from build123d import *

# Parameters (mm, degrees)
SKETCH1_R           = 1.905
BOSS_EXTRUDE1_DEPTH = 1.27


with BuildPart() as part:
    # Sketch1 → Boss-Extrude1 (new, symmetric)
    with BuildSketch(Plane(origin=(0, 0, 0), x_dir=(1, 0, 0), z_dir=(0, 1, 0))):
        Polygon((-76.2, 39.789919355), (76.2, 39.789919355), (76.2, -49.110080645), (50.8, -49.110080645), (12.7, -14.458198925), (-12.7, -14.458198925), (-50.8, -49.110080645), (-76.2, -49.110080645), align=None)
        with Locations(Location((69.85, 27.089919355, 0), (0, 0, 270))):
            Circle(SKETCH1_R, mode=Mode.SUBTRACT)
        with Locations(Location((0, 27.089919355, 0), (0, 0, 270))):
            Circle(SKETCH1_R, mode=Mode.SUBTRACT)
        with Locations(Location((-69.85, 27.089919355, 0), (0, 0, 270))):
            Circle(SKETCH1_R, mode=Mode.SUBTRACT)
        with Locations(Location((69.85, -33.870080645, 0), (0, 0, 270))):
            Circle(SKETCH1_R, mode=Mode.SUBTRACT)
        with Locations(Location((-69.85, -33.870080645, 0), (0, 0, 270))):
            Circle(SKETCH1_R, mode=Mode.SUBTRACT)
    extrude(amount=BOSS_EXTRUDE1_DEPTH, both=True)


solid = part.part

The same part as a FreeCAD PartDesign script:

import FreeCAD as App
import Part
import Sketcher

V = App.Vector
Q = App.Units.Quantity

doc = App.newDocument("Part")
params = doc.addObject("Spreadsheet::Sheet", "Params")
for row, (alias, value) in enumerate([
    ("sketch1_diameter", "0.15 in"),
    ("sketch1_width", "6 in"),
    ("sketch1_width2", "1 in"),
    ("sketch1_height", "3.5 in"),
    ("pad1_length", "0.1 in"),
], start=1):
    params.set(f"A{row}", alias)
    params.set(f"B{row}", "=" + value)
    params.setAlias(f"B{row}", alias)

body = doc.addObject("PartDesign::Body", "Body")

# Sketch on XZ plane
sketch1 = body.newObject("Sketcher::SketchObject", "Sketch")
sketch1.AttachmentSupport = (doc.getObject("XZ_Plane"), [""])
sketch1.MapMode = "FlatFace"
sketch1.addGeometry([
    Part.LineSegment(V(76.2, -39.789919, 0), V(-76.2, -39.789919, 0)),  # 0
    Part.LineSegment(V(-76.2, -39.789919, 0), V(-76.2, 49.110081, 0)),  # 1
    Part.LineSegment(V(-76.2, 49.110081, 0), V(-50.8, 49.110081, 0)),  # 2
    Part.LineSegment(V(-50.8, 49.110081, 0), V(-12.7, 14.458199, 0)),  # 3
    Part.LineSegment(V(-12.7, 14.458199, 0), V(12.7, 14.458199, 0)),  # 4
    Part.LineSegment(V(12.7, 14.458199, 0), V(50.8, 49.110081, 0)),  # 5
    Part.LineSegment(V(50.8, 49.110081, 0), V(76.2, 49.110081, 0)),  # 6
    Part.LineSegment(V(76.2, 49.110081, 0), V(76.2, -39.789919, 0)),  # 7
    Part.Circle(V(69.85, 33.870081, 0), V(0, 0, 1), 1.905),  # 8
    Part.Circle(V(-69.85, 33.870081, 0), V(0, 0, 1), 1.905),  # 9
    Part.Circle(V(69.85, -27.089919, 0), V(0, 0, 1), 1.905),  # 10
    Part.Circle(V(0, -27.089919, 0), V(0, 0, 1), 1.905),  # 11
    Part.Circle(V(-69.85, -27.089919, 0), V(0, 0, 1), 1.905),  # 12
], False)
sketch1.addConstraint([
    Sketcher.Constraint("Coincident", 0, 2, 1, 1),
    Sketcher.Constraint("Coincident", 1, 2, 2, 1),
    Sketcher.Constraint("Coincident", 2, 2, 3, 1),
    Sketcher.Constraint("Coincident", 3, 2, 4, 1),
    Sketcher.Constraint("Coincident", 4, 2, 5, 1),
    Sketcher.Constraint("Coincident", 5, 2, 6, 1),
    Sketcher.Constraint("Coincident", 6, 2, 7, 1),
    Sketcher.Constraint("Coincident", 7, 2, 0, 1),
    Sketcher.Constraint("Horizontal", 0),
    Sketcher.Constraint("Vertical", 1),
    Sketcher.Constraint("Horizontal", 2),
    Sketcher.Constraint("Horizontal", 4),
    Sketcher.Constraint("Horizontal", 6),
    Sketcher.Constraint("Vertical", 7),
    Sketcher.Constraint("Equal", 8, 9),
    Sketcher.Constraint("Equal", 9, 10),
    Sketcher.Constraint("Equal", 10, 11),
    Sketcher.Constraint("Equal", 11, 12),
    Sketcher.Constraint("Symmetric", 8, 3, 9, 3, -2),
    Sketcher.Constraint("Symmetric", 10, 3, 12, 3, -2),
    Sketcher.Constraint("Symmetric", 2, 2, 5, 2, -2),
    Sketcher.Constraint("PointOnObject", 11, 3, -2),
    Sketcher.Constraint("Horizontal", 10, 3, 11, 3),
    Sketcher.Constraint("Vertical", 8, 3, 10, 3),
    Sketcher.Constraint("Equal", 2, 4),
    Sketcher.Constraint("Equal", 4, 6),
    Sketcher.Constraint("Equal", 3, 5),
    Sketcher.Constraint("Diameter", 8, Q("0.15 in")),
    Sketcher.Constraint("DistanceX", 0, 2, 0, 1, Q("6 in")),
    Sketcher.Constraint("DistanceX", 2, 1, 2, 2, Q("1 in")),
    Sketcher.Constraint("DistanceY", 1, 1, 1, 2, Q("3.5 in")),
    Sketcher.Constraint("DistanceY", 12, 3, 1, 2, Q("3 in")),
    Sketcher.Constraint("DistanceX", 9, 3, 8, 3, Q("5.5 in")),
    Sketcher.Constraint("DistanceY", 10, 3, 8, 3, Q("2.4 in")),
    Sketcher.Constraint("DistanceY", -1, 1, 3, 2, Q("14.458199 mm")),
    Sketcher.Constraint("DistanceY", -1, 1, 8, 3, Q("33.870081 mm")),
])
sketch1.setExpression("Constraints[27]", "Params.sketch1_diameter")
sketch1.setExpression("Constraints[28]", "Params.sketch1_width")
sketch1.setExpression("Constraints[29]", "Params.sketch1_width2")
sketch1.setExpression("Constraints[30]", "Params.sketch1_height")
pad1 = body.newObject("PartDesign::Pad", "Pad")
pad1.Profile = sketch1
pad1.setExpression("Length", "Params.pad1_length")
pad1.Midplane = True

doc.recompute()
